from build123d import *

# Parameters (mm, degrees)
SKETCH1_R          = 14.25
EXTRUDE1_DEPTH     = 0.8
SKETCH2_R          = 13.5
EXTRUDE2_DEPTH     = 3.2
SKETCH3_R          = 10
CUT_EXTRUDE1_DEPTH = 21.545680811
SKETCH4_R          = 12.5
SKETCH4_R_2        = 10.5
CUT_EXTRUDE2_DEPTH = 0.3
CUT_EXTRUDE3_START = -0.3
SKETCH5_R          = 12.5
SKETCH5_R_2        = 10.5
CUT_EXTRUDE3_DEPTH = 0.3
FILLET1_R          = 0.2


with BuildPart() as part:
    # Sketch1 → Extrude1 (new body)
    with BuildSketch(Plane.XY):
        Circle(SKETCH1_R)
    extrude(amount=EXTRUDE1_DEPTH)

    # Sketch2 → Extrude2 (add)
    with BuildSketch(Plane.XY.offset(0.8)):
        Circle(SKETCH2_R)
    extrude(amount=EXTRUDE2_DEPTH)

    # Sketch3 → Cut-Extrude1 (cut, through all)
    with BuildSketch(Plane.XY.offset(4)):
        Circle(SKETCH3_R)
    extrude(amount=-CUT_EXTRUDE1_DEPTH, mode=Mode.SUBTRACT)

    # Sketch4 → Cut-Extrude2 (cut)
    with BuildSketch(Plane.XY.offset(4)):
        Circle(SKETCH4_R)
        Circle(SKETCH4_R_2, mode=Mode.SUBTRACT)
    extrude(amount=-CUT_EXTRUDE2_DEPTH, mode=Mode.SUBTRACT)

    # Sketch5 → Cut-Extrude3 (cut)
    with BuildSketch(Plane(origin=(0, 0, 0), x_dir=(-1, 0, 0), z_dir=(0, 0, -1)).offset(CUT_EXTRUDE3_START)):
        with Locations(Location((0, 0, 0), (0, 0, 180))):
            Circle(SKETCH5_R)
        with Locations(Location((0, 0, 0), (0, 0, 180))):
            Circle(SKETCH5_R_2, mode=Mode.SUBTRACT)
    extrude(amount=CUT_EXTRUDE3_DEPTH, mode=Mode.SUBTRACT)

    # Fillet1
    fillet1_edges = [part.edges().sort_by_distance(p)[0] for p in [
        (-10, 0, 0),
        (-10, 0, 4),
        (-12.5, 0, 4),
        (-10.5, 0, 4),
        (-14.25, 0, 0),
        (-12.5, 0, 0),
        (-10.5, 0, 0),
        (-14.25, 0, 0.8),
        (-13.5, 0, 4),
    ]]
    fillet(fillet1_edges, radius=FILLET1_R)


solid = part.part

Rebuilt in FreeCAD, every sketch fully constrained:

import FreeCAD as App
import Part
import Sketcher
Q = App.Units.Quantity


def edges_at(feature, points):
    """Names of the edges that pass closest to the given points."""
    edges = feature.Shape.Edges
    near = lambda p: min(range(len(edges)), key=lambda i: edges[i].distToShape(Part.Vertex(*p))[0])
    return sorted({f"Edge{near(p) + 1}" for p in points})

doc = App.newDocument("Part")
params = doc.addObject("Spreadsheet::Sheet", "Params")
for row, (alias, value) in enumerate([
    ("sketch1_diameter", "28.5 mm"),
    ("pad1_length", "0.8 mm"),
    ("sketch2_diameter", "27 mm"),
    ("pad2_length", "3.2 mm"),
    ("sketch3_diameter", "20 mm"),
    ("sketch4_diameter", "25 mm"),
    ("sketch4_diameter2", "21 mm"),
    ("pocket2_length", "0.3 mm"),
    ("sketch5_diameter", "25 mm"),
    ("sketch5_diameter2", "21 mm"),
    ("pocket3_length", "0.3 mm"),
    ("fillet_radius", "0.2 mm"),
], start=1):
    params.set(f"A{row}", alias)
    params.set(f"B{row}", "=" + value)
    params.setAlias(f"B{row}", alias)

body = doc.addObject("PartDesign::Body", "Body")

sketch1 = body.newObject("Sketcher::SketchObject", "Sketch")
sketch1.AttachmentSupport = (doc.getObject("XY_Plane"), [""])
sketch1.MapMode = "FlatFace"
sketch1.addGeometry(Part.Circle(App.Vector(0, 0, 0), App.Vector(0, 0, 1), 14.25), False)
sketch1.addConstraint([
    Sketcher.Constraint("Coincident", 0, 3, -1, 1),
    Sketcher.Constraint("Diameter", 0, Q("28.5 mm")),
])
sketch1.setExpression("Constraints[1]", "Params.sketch1_diameter")
pad1 = body.newObject("PartDesign::Pad", "Pad")
pad1.Profile = sketch1
pad1.setExpression("Length", "Params.pad1_length")

sketch2 = body.newObject("Sketcher::SketchObject", "Sketch001")
sketch2.AttachmentSupport = (doc.getObject("XY_Plane"), [""])
sketch2.MapMode = "FlatFace"
sketch2.AttachmentOffset = App.Placement(App.Vector(0, 0, 0.8), App.Rotation())
sketch2.addGeometry(Part.Circle(App.Vector(0, 0, 0), App.Vector(0, 0, 1), 13.5), False)
sketch2.addConstraint([
    Sketcher.Constraint("Coincident", 0, 3, -1, 1),
    Sketcher.Constraint("Diameter", 0, Q("27 mm")),
])
sketch2.setExpression("Constraints[1]", "Params.sketch2_diameter")
pad2 = body.newObject("PartDesign::Pad", "Pad001")
pad2.Profile = sketch2
pad2.setExpression("Length", "Params.pad2_length")

sketch3 = body.newObject("Sketcher::SketchObject", "Sketch002")
sketch3.AttachmentSupport = (doc.getObject("XY_Plane"), [""])
sketch3.MapMode = "FlatFace"
sketch3.AttachmentOffset = App.Placement(App.Vector(0, 0, 4), App.Rotation())
sketch3.addGeometry(Part.Circle(App.Vector(0, 0, 0), App.Vector(0, 0, 1), 10), False)
sketch3.addConstraint([
    Sketcher.Constraint("Coincident", 0, 3, -1, 1),
    Sketcher.Constraint("Diameter", 0, Q("20 mm")),
])
sketch3.setExpression("Constraints[1]", "Params.sketch3_diameter")
pocket1 = body.newObject("PartDesign::Pocket", "Pocket")
pocket1.Profile = sketch3
pocket1.Type = "ThroughAll"

sketch4 = body.newObject("Sketcher::SketchObject", "Sketch003")
sketch4.AttachmentSupport = (doc.getObject("XY_Plane"), [""])
sketch4.MapMode = "FlatFace"
sketch4.AttachmentOffset = App.Placement(App.Vector(0, 0, 4), App.Rotation())
sketch4.addGeometry([
    Part.Circle(App.Vector(0, 0, 0), App.Vector(0, 0, 1), 12.5),
    Part.Circle(App.Vector(0, 0, 0), App.Vector(0, 0, 1), 10.5),
], False)
sketch4.addConstraint([
    Sketcher.Constraint("Coincident", 0, 3, -1, 1),
    Sketcher.Constraint("Coincident", 1, 3, -1, 1),
    Sketcher.Constraint("Diameter", 0, Q("25 mm")),
    Sketcher.Constraint("Diameter", 1, Q("21 mm")),
])
sketch4.setExpression("Constraints[2]", "Params.sketch4_diameter")
sketch4.setExpression("Constraints[3]", "Params.sketch4_diameter2")
pocket2 = body.newObject("PartDesign::Pocket", "Pocket001")
pocket2.Profile = sketch4
pocket2.setExpression("Length", "Params.pocket2_length")

sketch5 = body.newObject("Sketcher::SketchObject", "Sketch004")
sketch5.AttachmentSupport = (doc.getObject("XY_Plane"), [""])
sketch5.MapMode = "FlatFace"
sketch5.AttachmentOffset = App.Placement(App.Vector(0, 0, 0.3), App.Rotation())
sketch5.addGeometry([
    Part.Circle(App.Vector(0, 0, 0), App.Vector(0, 0, 1), 12.5),
    Part.Circle(App.Vector(0, 0, 0), App.Vector(0, 0, 1), 10.5),
], False)
sketch5.addConstraint([
    Sketcher.Constraint("Coincident", 0, 3, -1, 1),
    Sketcher.Constraint("Coincident", 1, 3, -1, 1),
    Sketcher.Constraint("Diameter", 0, Q("25 mm")),
    Sketcher.Constraint("Diameter", 1, Q("21 mm")),
])
sketch5.setExpression("Constraints[2]", "Params.sketch5_diameter")
sketch5.setExpression("Constraints[3]", "Params.sketch5_diameter2")
pocket3 = body.newObject("PartDesign::Pocket", "Pocket002")
pocket3.Profile = sketch5
pocket3.setExpression("Length", "Params.pocket3_length")
doc.recompute()

fillet = body.newObject("PartDesign::Fillet", "Fillet")
fillet.Base = (pocket3, edges_at(pocket3, [
    (-10, 0, 0),
    (-10, 0, 4),
    (-12.5, 0, 4),
    (-10.5, 0, 4),
    (-14.25, 0, 0),
    (-12.5, 0, 0),
    (-10.5, 0, 0),
    (-14.25, 0, 0.8),
    (-13.5, 0, 4),
]))
fillet.setExpression("Radius", "Params.fillet_radius")

doc.recompute()
